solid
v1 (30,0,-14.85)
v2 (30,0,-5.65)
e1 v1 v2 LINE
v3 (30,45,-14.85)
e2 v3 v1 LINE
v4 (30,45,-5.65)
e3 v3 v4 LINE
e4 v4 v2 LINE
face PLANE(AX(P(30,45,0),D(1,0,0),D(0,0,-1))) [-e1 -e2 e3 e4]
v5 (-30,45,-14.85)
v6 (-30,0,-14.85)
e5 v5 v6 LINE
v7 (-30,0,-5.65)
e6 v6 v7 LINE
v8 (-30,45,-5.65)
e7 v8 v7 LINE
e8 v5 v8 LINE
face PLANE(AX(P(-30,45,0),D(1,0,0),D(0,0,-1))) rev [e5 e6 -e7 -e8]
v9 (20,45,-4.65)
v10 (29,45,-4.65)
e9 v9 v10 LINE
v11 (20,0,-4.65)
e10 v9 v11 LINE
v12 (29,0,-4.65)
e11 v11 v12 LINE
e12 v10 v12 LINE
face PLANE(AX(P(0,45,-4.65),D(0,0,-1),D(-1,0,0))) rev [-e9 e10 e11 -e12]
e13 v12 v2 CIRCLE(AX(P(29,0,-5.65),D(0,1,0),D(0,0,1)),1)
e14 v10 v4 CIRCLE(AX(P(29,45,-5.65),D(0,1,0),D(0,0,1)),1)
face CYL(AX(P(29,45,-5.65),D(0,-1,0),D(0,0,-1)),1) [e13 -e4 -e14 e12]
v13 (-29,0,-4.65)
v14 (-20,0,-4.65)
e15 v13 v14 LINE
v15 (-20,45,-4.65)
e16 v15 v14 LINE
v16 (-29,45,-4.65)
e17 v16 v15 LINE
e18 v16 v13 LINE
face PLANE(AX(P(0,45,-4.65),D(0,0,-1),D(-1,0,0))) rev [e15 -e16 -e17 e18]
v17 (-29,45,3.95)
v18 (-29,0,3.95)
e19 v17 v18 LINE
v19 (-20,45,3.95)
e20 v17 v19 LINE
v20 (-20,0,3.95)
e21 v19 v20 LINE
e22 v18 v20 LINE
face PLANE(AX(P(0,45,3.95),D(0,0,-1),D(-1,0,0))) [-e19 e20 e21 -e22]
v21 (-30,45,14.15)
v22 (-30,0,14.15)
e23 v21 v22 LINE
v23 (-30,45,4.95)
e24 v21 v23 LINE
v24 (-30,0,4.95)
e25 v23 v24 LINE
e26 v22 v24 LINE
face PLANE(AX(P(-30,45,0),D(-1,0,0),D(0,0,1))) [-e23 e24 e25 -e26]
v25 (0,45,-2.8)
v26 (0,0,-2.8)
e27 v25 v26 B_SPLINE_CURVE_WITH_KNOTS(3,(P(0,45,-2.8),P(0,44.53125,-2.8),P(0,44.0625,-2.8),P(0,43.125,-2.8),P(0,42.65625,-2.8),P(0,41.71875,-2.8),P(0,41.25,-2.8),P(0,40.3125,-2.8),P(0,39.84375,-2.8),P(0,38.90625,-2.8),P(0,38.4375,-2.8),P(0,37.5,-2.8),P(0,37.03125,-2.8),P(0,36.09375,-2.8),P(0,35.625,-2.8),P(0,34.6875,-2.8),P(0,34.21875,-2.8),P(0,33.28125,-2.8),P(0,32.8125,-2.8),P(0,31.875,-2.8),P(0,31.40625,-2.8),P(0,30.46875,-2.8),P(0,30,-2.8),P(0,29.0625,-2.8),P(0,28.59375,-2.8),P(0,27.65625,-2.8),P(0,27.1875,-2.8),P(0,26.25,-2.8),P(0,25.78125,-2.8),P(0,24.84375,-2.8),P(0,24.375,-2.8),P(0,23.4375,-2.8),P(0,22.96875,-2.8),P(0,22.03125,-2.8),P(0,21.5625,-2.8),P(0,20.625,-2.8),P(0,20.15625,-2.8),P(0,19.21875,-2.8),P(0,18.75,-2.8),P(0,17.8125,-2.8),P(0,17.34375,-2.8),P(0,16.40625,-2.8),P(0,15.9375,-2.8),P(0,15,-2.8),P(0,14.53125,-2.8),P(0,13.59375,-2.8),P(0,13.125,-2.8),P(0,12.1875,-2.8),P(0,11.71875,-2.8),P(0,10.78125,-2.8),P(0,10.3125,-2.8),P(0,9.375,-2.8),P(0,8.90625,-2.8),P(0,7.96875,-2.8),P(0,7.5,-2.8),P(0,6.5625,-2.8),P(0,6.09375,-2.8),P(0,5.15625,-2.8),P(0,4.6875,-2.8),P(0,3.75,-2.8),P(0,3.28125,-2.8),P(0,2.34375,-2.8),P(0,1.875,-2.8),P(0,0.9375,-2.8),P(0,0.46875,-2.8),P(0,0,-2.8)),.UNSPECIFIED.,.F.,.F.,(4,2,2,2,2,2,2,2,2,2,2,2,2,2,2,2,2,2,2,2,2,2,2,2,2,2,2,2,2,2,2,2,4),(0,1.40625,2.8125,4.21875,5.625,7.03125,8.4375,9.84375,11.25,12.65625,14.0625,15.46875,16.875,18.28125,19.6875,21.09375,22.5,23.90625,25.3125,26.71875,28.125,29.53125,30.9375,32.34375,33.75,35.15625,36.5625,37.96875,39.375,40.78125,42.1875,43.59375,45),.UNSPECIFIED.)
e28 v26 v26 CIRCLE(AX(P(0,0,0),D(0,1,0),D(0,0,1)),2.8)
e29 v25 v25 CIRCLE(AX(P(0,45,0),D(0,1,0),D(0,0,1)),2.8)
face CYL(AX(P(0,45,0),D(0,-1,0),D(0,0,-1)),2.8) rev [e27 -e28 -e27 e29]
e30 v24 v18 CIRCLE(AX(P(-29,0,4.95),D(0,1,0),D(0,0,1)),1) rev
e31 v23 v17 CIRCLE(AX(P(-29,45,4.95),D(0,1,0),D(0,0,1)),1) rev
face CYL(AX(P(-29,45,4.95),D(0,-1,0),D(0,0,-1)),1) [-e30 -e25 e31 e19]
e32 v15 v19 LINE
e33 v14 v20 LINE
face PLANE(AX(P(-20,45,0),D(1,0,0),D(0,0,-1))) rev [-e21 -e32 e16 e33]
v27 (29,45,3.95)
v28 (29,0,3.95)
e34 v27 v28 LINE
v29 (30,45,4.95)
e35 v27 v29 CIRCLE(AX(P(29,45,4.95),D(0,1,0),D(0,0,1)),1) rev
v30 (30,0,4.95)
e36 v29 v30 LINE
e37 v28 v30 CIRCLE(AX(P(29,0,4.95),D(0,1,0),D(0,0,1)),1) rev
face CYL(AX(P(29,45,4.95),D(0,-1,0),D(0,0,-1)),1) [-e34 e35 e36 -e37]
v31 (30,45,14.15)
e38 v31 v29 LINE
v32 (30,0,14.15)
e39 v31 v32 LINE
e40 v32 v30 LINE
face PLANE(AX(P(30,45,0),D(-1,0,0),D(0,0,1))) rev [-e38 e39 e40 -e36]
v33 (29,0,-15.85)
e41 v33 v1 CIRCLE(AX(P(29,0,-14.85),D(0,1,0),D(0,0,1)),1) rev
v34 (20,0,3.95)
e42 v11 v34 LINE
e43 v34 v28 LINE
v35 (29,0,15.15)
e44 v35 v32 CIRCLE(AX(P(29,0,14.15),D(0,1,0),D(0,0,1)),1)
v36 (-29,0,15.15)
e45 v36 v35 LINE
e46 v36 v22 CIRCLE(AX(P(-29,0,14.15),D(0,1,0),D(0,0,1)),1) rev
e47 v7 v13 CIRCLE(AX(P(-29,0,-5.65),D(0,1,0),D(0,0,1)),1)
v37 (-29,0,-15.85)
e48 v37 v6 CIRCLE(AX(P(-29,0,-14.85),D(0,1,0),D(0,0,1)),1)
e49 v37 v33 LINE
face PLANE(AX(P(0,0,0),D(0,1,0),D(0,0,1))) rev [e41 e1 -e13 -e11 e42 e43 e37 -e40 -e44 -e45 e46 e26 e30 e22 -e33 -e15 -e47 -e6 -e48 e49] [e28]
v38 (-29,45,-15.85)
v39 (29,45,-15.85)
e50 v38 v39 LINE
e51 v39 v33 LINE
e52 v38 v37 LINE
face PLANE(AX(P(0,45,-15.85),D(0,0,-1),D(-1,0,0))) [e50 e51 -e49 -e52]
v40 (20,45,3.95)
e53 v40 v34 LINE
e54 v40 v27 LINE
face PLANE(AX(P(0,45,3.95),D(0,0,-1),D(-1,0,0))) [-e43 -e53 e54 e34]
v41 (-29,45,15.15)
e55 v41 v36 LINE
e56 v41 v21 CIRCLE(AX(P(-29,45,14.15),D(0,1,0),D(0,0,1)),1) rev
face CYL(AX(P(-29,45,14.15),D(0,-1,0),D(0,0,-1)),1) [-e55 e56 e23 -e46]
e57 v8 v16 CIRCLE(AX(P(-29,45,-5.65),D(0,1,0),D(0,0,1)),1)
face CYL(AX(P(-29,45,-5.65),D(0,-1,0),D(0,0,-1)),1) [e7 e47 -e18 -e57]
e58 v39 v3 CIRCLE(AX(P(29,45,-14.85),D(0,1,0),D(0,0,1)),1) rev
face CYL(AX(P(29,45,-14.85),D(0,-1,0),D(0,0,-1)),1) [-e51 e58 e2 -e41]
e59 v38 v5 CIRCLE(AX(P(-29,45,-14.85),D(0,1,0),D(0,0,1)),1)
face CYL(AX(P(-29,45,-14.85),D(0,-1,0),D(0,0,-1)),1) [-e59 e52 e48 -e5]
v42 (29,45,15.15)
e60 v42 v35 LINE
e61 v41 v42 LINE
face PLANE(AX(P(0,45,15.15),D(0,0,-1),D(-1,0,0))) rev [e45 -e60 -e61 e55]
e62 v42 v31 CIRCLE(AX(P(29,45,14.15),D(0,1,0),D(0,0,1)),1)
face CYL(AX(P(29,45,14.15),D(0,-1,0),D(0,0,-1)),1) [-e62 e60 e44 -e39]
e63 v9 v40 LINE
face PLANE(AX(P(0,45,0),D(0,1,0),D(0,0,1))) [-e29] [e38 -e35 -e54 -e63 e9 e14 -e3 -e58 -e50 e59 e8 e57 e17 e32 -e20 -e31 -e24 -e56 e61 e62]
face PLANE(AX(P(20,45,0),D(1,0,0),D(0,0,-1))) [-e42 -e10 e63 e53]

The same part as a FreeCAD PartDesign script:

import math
import FreeCAD as App
import Part
import Sketcher
from FreeCAD import Vector
Q = App.Units.Quantity

doc = App.newDocument("Part")
body = doc.addObject("PartDesign::Body", "Body")

sketch1 = doc.addObject("Sketcher::SketchObject", "Sketch")
body.addObject(sketch1)
sketch1.AttachmentSupport = (doc.XZ_Plane, [""])
sketch1.MapMode = "FlatFace"
sketch1.addGeometry(Part.LineSegment(Vector(20, 4, 0), Vector(20, -4.7, 0)), False)
sketch1.addGeometry(Part.LineSegment(Vector(20, -4.7, 0), Vector(29, -4.7, 0)), False)
sketch1.addGeometry(Part.ArcOfCircle(Part.Circle(Vector(29, -5.7, 0), Vector(0, 0, 1), 1), math.radians(0), math.radians(90)), False)
sketch1.addGeometry(Part.LineSegment(Vector(30, -5.7, 0), Vector(30, -14.8, 0)), False)
sketch1.addGeometry(Part.ArcOfCircle(Part.Circle(Vector(29, -14.8, 0), Vector(0, 0, 1), 1), math.radians(-90), math.radians(0)), False)
sketch1.addGeometry(Part.LineSegment(Vector(29, -15.8, 0), Vector(-29, -15.8, 0)), False)
sketch1.addGeometry(Part.ArcOfCircle(Part.Circle(Vector(-29, -14.8, 0), Vector(0, 0, 1), 1), math.radians(-180), math.radians(-90)), False)
sketch1.addGeometry(Part.LineSegment(Vector(-30, -14.8, 0), Vector(-30, -5.7, 0)), False)
sketch1.addGeometry(Part.ArcOfCircle(Part.Circle(Vector(-29, -5.7, 0), Vector(0, 0, 1), 1), math.radians(90), math.radians(180)), False)
sketch1.addGeometry(Part.LineSegment(Vector(-29, -4.7, 0), Vector(-20, -4.7, 0)), False)
sketch1.addGeometry(Part.LineSegment(Vector(-20, -4.7, 0), Vector(-20, 4, 0)), False)
sketch1.addGeometry(Part.LineSegment(Vector(-20, 4, 0), Vector(-29, 4, 0)), False)
sketch1.addGeometry(Part.ArcOfCircle(Part.Circle(Vector(-29, 5, 0), Vector(0, 0, 1), 1), math.radians(-180), math.radians(-90)), False)
sketch1.addGeometry(Part.LineSegment(Vector(-30, 5, 0), Vector(-30, 14.2, 0)), False)
sketch1.addGeometry(Part.ArcOfCircle(Part.Circle(Vector(-29, 14.1, 0), Vector(0, 0, 1), 1), math.radians(90), math.radians(180)), False)
sketch1.addGeometry(Part.LineSegment(Vector(-29, 15.2, 0), Vector(29, 15.2, 0)), False)
sketch1.addGeometry(Part.ArcOfCircle(Part.Circle(Vector(29, 14.1, 0), Vector(0, 0, 1), 1), math.radians(0), math.radians(90)), False)
sketch1.addGeometry(Part.LineSegment(Vector(30, 14.2, 0), Vector(30, 5, 0)), False)
sketch1.addGeometry(Part.ArcOfCircle(Part.Circle(Vector(29, 5, 0), Vector(0, 0, 1), 1), math.radians(-90), math.radians(0)), False)
sketch1.addGeometry(Part.LineSegment(Vector(29, 4, 0), Vector(20, 4, 0)), False)
sketch1.addGeometry(Part.Circle(Vector(0, 0, 0), Vector(0, 0, 1), 2.8), False)
sketch1.addConstraint(Sketcher.Constraint("Coincident", 0, 2, 1, 1))
sketch1.addConstraint(Sketcher.Constraint("Tangent", 1, 2, 2, 2))
sketch1.addConstraint(Sketcher.Constraint("Tangent", 2, 1, 3, 1))
sketch1.addConstraint(Sketcher.Constraint("Tangent", 3, 2, 4, 2))
sketch1.addConstraint(Sketcher.Constraint("Tangent", 4, 1, 5, 1))
sketch1.addConstraint(Sketcher.Constraint("Tangent", 5, 2, 6, 2))
sketch1.addConstraint(Sketcher.Constraint("Tangent", 6, 1, 7, 1))
sketch1.addConstraint(Sketcher.Constraint("Tangent", 7, 2, 8, 2))
sketch1.addConstraint(Sketcher.Constraint("Tangent", 8, 1, 9, 1))
sketch1.addConstraint(Sketcher.Constraint("Coincident", 9, 2, 10, 1))
sketch1.addConstraint(Sketcher.Constraint("Coincident", 10, 2, 11, 1))
sketch1.addConstraint(Sketcher.Constraint("Tangent", 11, 2, 12, 2))
sketch1.addConstraint(Sketcher.Constraint("Tangent", 12, 1, 13, 1))
sketch1.addConstraint(Sketcher.Constraint("Tangent", 13, 2, 14, 2))
sketch1.addConstraint(Sketcher.Constraint("Tangent", 14, 1, 15, 1))
sketch1.addConstraint(Sketcher.Constraint("Tangent", 15, 2, 16, 2))
sketch1.addConstraint(Sketcher.Constraint("Tangent", 16, 1, 17, 1))
sketch1.addConstraint(Sketcher.Constraint("Tangent", 17, 2, 18, 2))
sketch1.addConstraint(Sketcher.Constraint("Tangent", 18, 1, 19, 1))
sketch1.addConstraint(Sketcher.Constraint("Coincident", 19, 2, 0, 1))
sketch1.addConstraint(Sketcher.Constraint("Vertical", 0))
sketch1.addConstraint(Sketcher.Constraint("Horizontal", 1))
sketch1.addConstraint(Sketcher.Constraint("Vertical", 3))
sketch1.addConstraint(Sketcher.Constraint("Horizontal", 5))
sketch1.addConstraint(Sketcher.Constraint("Vertical", 7))
sketch1.addConstraint(Sketcher.Constraint("Horizontal", 9))
sketch1.addConstraint(Sketcher.Constraint("Vertical", 10))
sketch1.addConstraint(Sketcher.Constraint("Horizontal", 11))
sketch1.addConstraint(Sketcher.Constraint("Vertical", 13))
sketch1.addConstraint(Sketcher.Constraint("Horizontal", 15))
sketch1.addConstraint(Sketcher.Constraint("Vertical", 17))
sketch1.addConstraint(Sketcher.Constraint("Horizontal", 19))
sketch1.addConstraint(Sketcher.Constraint("Coincident", 20, 3, -1, 1))
sketch1.addConstraint(Sketcher.Constraint("Equal", 2, 4))
sketch1.addConstraint(Sketcher.Constraint("Equal", 4, 6))
sketch1.addConstraint(Sketcher.Constraint("Equal", 6, 8))
sketch1.addConstraint(Sketcher.Constraint("Equal", 8, 12))
sketch1.addConstraint(Sketcher.Constraint("Equal", 12, 14))
sketch1.addConstraint(Sketcher.Constraint("Equal", 14, 16))
sketch1.addConstraint(Sketcher.Constraint("Equal", 16, 18))
sketch1.addConstraint(Sketcher.Constraint("Symmetric", 2, 3, 8, 3, -2))
sketch1.addConstraint(Sketcher.Constraint("Symmetric", 12, 3, 18, 3, -2))
sketch1.addConstraint(Sketcher.Constraint("Vertical", 8, 3, 12, 3))
sketch1.addConstraint(Sketcher.Constraint("Equal", 1, 9))
sketch1.addConstraint(Sketcher.Constraint("Equal", 7, 13))
sketch1.addConstraint(Sketcher.Constraint("Radius", 2, Q("1 mm")))
sketch1.addConstraint(Sketcher.Constraint("Diameter", 20, Q("5.6 mm")))
sketch1.addConstraint(Sketcher.Constraint("DistanceX", 1, 1, 1, 2, Q("9 mm")))
sketch1.addConstraint(Sketcher.Constraint("DistanceX", 5, 2, 5, 1, Q("58 mm")))
sketch1.addConstraint(Sketcher.Constraint("DistanceY", 0, 2, 0, 1, Q("8.6 mm")))
sketch1.addConstraint(Sketcher.Constraint("DistanceY", 3, 2, 3, 1, Q("9.2 mm")))
sketch1.addConstraint(Sketcher.Constraint("DistanceY", 2, 3, -1, 1, Q("5.65 mm")))
pad1 = doc.addObject("PartDesign::Pad", "Pad")
body.addObject(pad1)
pad1.Profile = sketch1
pad1.Length = 45
pad1.Reversed = True

doc.recompute()
